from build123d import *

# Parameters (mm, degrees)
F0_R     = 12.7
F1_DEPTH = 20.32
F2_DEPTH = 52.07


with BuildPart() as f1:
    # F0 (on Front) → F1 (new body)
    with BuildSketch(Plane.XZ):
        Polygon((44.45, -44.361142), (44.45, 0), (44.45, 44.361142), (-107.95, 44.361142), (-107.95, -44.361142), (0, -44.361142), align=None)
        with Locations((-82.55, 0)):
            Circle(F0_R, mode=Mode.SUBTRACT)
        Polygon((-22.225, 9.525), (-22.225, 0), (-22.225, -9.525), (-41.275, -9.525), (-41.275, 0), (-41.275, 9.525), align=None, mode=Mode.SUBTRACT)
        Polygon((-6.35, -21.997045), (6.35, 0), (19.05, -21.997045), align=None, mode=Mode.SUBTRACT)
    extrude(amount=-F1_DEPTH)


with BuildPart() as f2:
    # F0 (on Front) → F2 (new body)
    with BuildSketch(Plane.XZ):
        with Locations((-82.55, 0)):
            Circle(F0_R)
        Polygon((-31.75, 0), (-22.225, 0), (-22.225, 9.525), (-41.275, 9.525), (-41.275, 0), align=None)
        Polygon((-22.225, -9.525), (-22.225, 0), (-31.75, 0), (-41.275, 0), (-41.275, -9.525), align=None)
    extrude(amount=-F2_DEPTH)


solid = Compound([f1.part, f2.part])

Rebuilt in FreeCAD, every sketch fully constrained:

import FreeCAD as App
import Part
import Sketcher
from FreeCAD import Vector
Q = App.Units.Quantity

doc = App.newDocument("Part")
body = doc.addObject("PartDesign::Body", "Body")

sketch1 = doc.addObject("Sketcher::SketchObject", "Sketch")
body.addObject(sketch1)
sketch1.AttachmentSupport = (doc.XZ_Plane, [""])
sketch1.MapMode = "FlatFace"
sketch1.addGeometry([
    Part.LineSegment(Vector(44, -44, 0), Vector(44, 44, 0)),
    Part.LineSegment(Vector(44, 44, 0), Vector(-108, 44, 0)),
    Part.LineSegment(Vector(-108, 44, 0), Vector(-108, -44, 0)),
    Part.LineSegment(Vector(-108, -44, 0), Vector(44, -44, 0)),
    Part.LineSegment(Vector(19, -22, 0), Vector(-6, -22, 0)),
    Part.LineSegment(Vector(-6, -22, 0), Vector(6, 0, 0)),
    Part.LineSegment(Vector(6, 0, 0), Vector(19, -22, 0)),
    Part.Circle(Vector(-83, 0, 0), Vector(0, 0, 1), 13),
    Part.LineSegment(Vector(-41, 10, 0), Vector(-22, 10, 0)),
    Part.LineSegment(Vector(-22, 10, 0), Vector(-22, -10, 0)),
    Part.LineSegment(Vector(-22, -10, 0), Vector(-41, -10, 0)),
    Part.LineSegment(Vector(-41, -10, 0), Vector(-41, 10, 0)),
], False)
sketch1.addConstraint([
    Sketcher.Constraint("Coincident", 0, 2, 1, 1),
    Sketcher.Constraint("Coincident", 1, 2, 2, 1),
    Sketcher.Constraint("Coincident", 2, 2, 3, 1),
    Sketcher.Constraint("Coincident", 3, 2, 0, 1),
    Sketcher.Constraint("Coincident", 4, 2, 5, 1),
    Sketcher.Constraint("Coincident", 5, 2, 6, 1),
    Sketcher.Constraint("Coincident", 6, 2, 4, 1),
    Sketcher.Constraint("Coincident", 8, 2, 9, 1),
    Sketcher.Constraint("Coincident", 9, 2, 10, 1),
    Sketcher.Constraint("Coincident", 10, 2, 11, 1),
    Sketcher.Constraint("Coincident", 11, 2, 8, 1),
    Sketcher.Constraint("Vertical", 0),
    Sketcher.Constraint("Horizontal", 1),
    Sketcher.Constraint("Vertical", 2),
    Sketcher.Constraint("Horizontal", 3),
    Sketcher.Constraint("Horizontal", 4),
    Sketcher.Constraint("Horizontal", 8),
    Sketcher.Constraint("Vertical", 9),
    Sketcher.Constraint("Horizontal", 10),
    Sketcher.Constraint("Vertical", 11),
    Sketcher.Constraint("PointOnObject", 7, 3, -1),
    Sketcher.Constraint("PointOnObject", 5, 2, -1),
    Sketcher.Constraint("Equal", 10, 9),
    Sketcher.Constraint("Equal", 5, 6),
    Sketcher.Constraint("Diameter", 7, Q("1 in")),
    Sketcher.Constraint("DistanceX", 1, 2, 1, 1, Q("6 in")),
    Sketcher.Constraint("DistanceX", 4, 2, 4, 1, Q("1 in")),
    Sketcher.Constraint("Distance", 5, Q("1 in")),
    Sketcher.Constraint("DistanceX", 7, 3, 0, 2, Q("5 in")),
    Sketcher.Constraint("DistanceX", 4, 2, 3, 2, Q("2 in")),
    Sketcher.Constraint("DistanceX", 8, 1, 8, 2, Q("0.75 in")),
    Sketcher.Constraint("DistanceX", 7, 3, -1, 1, Q("3.25 in")),
    Sketcher.Constraint("DistanceX", 8, 2, -1, 1, Q("0.875 in")),
    Sketcher.Constraint("DistanceY", -1, 1, 8, 2, Q("0.375 in")),
    Sketcher.Constraint("DistanceY", 0, 1, 0, 2, Q("88.722284 mm")),
    Sketcher.Constraint("DistanceY", -1, 1, 0, 2, Q("44.361142 mm")),
])
pad1 = doc.addObject("PartDesign::Pad", "Pad")
body.addObject(pad1)
pad1.Profile = sketch1
pad1.Length = Q("0.8 in")
pad1.Reversed = True
body2 = doc.addObject("PartDesign::Body", "Body001")
body2.AllowCompound = True

sketch2 = doc.addObject("Sketcher::SketchObject", "Sketch001")
body2.addObject(sketch2)
sketch2.AttachmentSupport = (doc.getObject("XZ_Plane001"), [""])
sketch2.MapMode = "FlatFace"
sketch2.addGeometry([
    Part.Circle(Vector(-83, 0, 0), Vector(0, 0, 1), 13),
    Part.LineSegment(Vector(-22, 10, 0), Vector(-41, 10, 0)),
    Part.LineSegment(Vector(-41, 10, 0), Vector(-41, -10, 0)),
    Part.LineSegment(Vector(-41, -10, 0), Vector(-22, -10, 0)),
    Part.LineSegment(Vector(-22, -10, 0), Vector(-22, 10, 0)),
], False)
sketch2.addConstraint([
    Sketcher.Constraint("Coincident", 1, 2, 2, 1),
    Sketcher.Constraint("Coincident", 2, 2, 3, 1),
    Sketcher.Constraint("Coincident", 3, 2, 4, 1),
    Sketcher.Constraint("Coincident", 4, 2, 1, 1),
    Sketcher.Constraint("Horizontal", 1),
    Sketcher.Constraint("Vertical", 2),
    Sketcher.Constraint("Horizontal", 3),
    Sketcher.Constraint("Vertical", 4),
    Sketcher.Constraint("PointOnObject", 0, 3, -1),
    Sketcher.Constraint("Equal", 3, 2),
    Sketcher.Constraint("Diameter", 0, Q("1 in")),
    Sketcher.Constraint("DistanceX", 1, 2, 1, 1, Q("0.75 in")),
    Sketcher.Constraint("DistanceX", 0, 3, -1, 1, Q("3.25 in")),
    Sketcher.Constraint("DistanceX", 1, 2, -1, 1, Q("1.625 in")),
    Sketcher.Constraint("DistanceY", -1, 1, 1, 2, Q("0.375 in")),
])
pad2 = doc.addObject("PartDesign::Pad", "Pad001")
body2.addObject(pad2)
pad2.Profile = sketch2
pad2.Length = Q("2.05 in")
pad2.Reversed = True

doc.recompute()
